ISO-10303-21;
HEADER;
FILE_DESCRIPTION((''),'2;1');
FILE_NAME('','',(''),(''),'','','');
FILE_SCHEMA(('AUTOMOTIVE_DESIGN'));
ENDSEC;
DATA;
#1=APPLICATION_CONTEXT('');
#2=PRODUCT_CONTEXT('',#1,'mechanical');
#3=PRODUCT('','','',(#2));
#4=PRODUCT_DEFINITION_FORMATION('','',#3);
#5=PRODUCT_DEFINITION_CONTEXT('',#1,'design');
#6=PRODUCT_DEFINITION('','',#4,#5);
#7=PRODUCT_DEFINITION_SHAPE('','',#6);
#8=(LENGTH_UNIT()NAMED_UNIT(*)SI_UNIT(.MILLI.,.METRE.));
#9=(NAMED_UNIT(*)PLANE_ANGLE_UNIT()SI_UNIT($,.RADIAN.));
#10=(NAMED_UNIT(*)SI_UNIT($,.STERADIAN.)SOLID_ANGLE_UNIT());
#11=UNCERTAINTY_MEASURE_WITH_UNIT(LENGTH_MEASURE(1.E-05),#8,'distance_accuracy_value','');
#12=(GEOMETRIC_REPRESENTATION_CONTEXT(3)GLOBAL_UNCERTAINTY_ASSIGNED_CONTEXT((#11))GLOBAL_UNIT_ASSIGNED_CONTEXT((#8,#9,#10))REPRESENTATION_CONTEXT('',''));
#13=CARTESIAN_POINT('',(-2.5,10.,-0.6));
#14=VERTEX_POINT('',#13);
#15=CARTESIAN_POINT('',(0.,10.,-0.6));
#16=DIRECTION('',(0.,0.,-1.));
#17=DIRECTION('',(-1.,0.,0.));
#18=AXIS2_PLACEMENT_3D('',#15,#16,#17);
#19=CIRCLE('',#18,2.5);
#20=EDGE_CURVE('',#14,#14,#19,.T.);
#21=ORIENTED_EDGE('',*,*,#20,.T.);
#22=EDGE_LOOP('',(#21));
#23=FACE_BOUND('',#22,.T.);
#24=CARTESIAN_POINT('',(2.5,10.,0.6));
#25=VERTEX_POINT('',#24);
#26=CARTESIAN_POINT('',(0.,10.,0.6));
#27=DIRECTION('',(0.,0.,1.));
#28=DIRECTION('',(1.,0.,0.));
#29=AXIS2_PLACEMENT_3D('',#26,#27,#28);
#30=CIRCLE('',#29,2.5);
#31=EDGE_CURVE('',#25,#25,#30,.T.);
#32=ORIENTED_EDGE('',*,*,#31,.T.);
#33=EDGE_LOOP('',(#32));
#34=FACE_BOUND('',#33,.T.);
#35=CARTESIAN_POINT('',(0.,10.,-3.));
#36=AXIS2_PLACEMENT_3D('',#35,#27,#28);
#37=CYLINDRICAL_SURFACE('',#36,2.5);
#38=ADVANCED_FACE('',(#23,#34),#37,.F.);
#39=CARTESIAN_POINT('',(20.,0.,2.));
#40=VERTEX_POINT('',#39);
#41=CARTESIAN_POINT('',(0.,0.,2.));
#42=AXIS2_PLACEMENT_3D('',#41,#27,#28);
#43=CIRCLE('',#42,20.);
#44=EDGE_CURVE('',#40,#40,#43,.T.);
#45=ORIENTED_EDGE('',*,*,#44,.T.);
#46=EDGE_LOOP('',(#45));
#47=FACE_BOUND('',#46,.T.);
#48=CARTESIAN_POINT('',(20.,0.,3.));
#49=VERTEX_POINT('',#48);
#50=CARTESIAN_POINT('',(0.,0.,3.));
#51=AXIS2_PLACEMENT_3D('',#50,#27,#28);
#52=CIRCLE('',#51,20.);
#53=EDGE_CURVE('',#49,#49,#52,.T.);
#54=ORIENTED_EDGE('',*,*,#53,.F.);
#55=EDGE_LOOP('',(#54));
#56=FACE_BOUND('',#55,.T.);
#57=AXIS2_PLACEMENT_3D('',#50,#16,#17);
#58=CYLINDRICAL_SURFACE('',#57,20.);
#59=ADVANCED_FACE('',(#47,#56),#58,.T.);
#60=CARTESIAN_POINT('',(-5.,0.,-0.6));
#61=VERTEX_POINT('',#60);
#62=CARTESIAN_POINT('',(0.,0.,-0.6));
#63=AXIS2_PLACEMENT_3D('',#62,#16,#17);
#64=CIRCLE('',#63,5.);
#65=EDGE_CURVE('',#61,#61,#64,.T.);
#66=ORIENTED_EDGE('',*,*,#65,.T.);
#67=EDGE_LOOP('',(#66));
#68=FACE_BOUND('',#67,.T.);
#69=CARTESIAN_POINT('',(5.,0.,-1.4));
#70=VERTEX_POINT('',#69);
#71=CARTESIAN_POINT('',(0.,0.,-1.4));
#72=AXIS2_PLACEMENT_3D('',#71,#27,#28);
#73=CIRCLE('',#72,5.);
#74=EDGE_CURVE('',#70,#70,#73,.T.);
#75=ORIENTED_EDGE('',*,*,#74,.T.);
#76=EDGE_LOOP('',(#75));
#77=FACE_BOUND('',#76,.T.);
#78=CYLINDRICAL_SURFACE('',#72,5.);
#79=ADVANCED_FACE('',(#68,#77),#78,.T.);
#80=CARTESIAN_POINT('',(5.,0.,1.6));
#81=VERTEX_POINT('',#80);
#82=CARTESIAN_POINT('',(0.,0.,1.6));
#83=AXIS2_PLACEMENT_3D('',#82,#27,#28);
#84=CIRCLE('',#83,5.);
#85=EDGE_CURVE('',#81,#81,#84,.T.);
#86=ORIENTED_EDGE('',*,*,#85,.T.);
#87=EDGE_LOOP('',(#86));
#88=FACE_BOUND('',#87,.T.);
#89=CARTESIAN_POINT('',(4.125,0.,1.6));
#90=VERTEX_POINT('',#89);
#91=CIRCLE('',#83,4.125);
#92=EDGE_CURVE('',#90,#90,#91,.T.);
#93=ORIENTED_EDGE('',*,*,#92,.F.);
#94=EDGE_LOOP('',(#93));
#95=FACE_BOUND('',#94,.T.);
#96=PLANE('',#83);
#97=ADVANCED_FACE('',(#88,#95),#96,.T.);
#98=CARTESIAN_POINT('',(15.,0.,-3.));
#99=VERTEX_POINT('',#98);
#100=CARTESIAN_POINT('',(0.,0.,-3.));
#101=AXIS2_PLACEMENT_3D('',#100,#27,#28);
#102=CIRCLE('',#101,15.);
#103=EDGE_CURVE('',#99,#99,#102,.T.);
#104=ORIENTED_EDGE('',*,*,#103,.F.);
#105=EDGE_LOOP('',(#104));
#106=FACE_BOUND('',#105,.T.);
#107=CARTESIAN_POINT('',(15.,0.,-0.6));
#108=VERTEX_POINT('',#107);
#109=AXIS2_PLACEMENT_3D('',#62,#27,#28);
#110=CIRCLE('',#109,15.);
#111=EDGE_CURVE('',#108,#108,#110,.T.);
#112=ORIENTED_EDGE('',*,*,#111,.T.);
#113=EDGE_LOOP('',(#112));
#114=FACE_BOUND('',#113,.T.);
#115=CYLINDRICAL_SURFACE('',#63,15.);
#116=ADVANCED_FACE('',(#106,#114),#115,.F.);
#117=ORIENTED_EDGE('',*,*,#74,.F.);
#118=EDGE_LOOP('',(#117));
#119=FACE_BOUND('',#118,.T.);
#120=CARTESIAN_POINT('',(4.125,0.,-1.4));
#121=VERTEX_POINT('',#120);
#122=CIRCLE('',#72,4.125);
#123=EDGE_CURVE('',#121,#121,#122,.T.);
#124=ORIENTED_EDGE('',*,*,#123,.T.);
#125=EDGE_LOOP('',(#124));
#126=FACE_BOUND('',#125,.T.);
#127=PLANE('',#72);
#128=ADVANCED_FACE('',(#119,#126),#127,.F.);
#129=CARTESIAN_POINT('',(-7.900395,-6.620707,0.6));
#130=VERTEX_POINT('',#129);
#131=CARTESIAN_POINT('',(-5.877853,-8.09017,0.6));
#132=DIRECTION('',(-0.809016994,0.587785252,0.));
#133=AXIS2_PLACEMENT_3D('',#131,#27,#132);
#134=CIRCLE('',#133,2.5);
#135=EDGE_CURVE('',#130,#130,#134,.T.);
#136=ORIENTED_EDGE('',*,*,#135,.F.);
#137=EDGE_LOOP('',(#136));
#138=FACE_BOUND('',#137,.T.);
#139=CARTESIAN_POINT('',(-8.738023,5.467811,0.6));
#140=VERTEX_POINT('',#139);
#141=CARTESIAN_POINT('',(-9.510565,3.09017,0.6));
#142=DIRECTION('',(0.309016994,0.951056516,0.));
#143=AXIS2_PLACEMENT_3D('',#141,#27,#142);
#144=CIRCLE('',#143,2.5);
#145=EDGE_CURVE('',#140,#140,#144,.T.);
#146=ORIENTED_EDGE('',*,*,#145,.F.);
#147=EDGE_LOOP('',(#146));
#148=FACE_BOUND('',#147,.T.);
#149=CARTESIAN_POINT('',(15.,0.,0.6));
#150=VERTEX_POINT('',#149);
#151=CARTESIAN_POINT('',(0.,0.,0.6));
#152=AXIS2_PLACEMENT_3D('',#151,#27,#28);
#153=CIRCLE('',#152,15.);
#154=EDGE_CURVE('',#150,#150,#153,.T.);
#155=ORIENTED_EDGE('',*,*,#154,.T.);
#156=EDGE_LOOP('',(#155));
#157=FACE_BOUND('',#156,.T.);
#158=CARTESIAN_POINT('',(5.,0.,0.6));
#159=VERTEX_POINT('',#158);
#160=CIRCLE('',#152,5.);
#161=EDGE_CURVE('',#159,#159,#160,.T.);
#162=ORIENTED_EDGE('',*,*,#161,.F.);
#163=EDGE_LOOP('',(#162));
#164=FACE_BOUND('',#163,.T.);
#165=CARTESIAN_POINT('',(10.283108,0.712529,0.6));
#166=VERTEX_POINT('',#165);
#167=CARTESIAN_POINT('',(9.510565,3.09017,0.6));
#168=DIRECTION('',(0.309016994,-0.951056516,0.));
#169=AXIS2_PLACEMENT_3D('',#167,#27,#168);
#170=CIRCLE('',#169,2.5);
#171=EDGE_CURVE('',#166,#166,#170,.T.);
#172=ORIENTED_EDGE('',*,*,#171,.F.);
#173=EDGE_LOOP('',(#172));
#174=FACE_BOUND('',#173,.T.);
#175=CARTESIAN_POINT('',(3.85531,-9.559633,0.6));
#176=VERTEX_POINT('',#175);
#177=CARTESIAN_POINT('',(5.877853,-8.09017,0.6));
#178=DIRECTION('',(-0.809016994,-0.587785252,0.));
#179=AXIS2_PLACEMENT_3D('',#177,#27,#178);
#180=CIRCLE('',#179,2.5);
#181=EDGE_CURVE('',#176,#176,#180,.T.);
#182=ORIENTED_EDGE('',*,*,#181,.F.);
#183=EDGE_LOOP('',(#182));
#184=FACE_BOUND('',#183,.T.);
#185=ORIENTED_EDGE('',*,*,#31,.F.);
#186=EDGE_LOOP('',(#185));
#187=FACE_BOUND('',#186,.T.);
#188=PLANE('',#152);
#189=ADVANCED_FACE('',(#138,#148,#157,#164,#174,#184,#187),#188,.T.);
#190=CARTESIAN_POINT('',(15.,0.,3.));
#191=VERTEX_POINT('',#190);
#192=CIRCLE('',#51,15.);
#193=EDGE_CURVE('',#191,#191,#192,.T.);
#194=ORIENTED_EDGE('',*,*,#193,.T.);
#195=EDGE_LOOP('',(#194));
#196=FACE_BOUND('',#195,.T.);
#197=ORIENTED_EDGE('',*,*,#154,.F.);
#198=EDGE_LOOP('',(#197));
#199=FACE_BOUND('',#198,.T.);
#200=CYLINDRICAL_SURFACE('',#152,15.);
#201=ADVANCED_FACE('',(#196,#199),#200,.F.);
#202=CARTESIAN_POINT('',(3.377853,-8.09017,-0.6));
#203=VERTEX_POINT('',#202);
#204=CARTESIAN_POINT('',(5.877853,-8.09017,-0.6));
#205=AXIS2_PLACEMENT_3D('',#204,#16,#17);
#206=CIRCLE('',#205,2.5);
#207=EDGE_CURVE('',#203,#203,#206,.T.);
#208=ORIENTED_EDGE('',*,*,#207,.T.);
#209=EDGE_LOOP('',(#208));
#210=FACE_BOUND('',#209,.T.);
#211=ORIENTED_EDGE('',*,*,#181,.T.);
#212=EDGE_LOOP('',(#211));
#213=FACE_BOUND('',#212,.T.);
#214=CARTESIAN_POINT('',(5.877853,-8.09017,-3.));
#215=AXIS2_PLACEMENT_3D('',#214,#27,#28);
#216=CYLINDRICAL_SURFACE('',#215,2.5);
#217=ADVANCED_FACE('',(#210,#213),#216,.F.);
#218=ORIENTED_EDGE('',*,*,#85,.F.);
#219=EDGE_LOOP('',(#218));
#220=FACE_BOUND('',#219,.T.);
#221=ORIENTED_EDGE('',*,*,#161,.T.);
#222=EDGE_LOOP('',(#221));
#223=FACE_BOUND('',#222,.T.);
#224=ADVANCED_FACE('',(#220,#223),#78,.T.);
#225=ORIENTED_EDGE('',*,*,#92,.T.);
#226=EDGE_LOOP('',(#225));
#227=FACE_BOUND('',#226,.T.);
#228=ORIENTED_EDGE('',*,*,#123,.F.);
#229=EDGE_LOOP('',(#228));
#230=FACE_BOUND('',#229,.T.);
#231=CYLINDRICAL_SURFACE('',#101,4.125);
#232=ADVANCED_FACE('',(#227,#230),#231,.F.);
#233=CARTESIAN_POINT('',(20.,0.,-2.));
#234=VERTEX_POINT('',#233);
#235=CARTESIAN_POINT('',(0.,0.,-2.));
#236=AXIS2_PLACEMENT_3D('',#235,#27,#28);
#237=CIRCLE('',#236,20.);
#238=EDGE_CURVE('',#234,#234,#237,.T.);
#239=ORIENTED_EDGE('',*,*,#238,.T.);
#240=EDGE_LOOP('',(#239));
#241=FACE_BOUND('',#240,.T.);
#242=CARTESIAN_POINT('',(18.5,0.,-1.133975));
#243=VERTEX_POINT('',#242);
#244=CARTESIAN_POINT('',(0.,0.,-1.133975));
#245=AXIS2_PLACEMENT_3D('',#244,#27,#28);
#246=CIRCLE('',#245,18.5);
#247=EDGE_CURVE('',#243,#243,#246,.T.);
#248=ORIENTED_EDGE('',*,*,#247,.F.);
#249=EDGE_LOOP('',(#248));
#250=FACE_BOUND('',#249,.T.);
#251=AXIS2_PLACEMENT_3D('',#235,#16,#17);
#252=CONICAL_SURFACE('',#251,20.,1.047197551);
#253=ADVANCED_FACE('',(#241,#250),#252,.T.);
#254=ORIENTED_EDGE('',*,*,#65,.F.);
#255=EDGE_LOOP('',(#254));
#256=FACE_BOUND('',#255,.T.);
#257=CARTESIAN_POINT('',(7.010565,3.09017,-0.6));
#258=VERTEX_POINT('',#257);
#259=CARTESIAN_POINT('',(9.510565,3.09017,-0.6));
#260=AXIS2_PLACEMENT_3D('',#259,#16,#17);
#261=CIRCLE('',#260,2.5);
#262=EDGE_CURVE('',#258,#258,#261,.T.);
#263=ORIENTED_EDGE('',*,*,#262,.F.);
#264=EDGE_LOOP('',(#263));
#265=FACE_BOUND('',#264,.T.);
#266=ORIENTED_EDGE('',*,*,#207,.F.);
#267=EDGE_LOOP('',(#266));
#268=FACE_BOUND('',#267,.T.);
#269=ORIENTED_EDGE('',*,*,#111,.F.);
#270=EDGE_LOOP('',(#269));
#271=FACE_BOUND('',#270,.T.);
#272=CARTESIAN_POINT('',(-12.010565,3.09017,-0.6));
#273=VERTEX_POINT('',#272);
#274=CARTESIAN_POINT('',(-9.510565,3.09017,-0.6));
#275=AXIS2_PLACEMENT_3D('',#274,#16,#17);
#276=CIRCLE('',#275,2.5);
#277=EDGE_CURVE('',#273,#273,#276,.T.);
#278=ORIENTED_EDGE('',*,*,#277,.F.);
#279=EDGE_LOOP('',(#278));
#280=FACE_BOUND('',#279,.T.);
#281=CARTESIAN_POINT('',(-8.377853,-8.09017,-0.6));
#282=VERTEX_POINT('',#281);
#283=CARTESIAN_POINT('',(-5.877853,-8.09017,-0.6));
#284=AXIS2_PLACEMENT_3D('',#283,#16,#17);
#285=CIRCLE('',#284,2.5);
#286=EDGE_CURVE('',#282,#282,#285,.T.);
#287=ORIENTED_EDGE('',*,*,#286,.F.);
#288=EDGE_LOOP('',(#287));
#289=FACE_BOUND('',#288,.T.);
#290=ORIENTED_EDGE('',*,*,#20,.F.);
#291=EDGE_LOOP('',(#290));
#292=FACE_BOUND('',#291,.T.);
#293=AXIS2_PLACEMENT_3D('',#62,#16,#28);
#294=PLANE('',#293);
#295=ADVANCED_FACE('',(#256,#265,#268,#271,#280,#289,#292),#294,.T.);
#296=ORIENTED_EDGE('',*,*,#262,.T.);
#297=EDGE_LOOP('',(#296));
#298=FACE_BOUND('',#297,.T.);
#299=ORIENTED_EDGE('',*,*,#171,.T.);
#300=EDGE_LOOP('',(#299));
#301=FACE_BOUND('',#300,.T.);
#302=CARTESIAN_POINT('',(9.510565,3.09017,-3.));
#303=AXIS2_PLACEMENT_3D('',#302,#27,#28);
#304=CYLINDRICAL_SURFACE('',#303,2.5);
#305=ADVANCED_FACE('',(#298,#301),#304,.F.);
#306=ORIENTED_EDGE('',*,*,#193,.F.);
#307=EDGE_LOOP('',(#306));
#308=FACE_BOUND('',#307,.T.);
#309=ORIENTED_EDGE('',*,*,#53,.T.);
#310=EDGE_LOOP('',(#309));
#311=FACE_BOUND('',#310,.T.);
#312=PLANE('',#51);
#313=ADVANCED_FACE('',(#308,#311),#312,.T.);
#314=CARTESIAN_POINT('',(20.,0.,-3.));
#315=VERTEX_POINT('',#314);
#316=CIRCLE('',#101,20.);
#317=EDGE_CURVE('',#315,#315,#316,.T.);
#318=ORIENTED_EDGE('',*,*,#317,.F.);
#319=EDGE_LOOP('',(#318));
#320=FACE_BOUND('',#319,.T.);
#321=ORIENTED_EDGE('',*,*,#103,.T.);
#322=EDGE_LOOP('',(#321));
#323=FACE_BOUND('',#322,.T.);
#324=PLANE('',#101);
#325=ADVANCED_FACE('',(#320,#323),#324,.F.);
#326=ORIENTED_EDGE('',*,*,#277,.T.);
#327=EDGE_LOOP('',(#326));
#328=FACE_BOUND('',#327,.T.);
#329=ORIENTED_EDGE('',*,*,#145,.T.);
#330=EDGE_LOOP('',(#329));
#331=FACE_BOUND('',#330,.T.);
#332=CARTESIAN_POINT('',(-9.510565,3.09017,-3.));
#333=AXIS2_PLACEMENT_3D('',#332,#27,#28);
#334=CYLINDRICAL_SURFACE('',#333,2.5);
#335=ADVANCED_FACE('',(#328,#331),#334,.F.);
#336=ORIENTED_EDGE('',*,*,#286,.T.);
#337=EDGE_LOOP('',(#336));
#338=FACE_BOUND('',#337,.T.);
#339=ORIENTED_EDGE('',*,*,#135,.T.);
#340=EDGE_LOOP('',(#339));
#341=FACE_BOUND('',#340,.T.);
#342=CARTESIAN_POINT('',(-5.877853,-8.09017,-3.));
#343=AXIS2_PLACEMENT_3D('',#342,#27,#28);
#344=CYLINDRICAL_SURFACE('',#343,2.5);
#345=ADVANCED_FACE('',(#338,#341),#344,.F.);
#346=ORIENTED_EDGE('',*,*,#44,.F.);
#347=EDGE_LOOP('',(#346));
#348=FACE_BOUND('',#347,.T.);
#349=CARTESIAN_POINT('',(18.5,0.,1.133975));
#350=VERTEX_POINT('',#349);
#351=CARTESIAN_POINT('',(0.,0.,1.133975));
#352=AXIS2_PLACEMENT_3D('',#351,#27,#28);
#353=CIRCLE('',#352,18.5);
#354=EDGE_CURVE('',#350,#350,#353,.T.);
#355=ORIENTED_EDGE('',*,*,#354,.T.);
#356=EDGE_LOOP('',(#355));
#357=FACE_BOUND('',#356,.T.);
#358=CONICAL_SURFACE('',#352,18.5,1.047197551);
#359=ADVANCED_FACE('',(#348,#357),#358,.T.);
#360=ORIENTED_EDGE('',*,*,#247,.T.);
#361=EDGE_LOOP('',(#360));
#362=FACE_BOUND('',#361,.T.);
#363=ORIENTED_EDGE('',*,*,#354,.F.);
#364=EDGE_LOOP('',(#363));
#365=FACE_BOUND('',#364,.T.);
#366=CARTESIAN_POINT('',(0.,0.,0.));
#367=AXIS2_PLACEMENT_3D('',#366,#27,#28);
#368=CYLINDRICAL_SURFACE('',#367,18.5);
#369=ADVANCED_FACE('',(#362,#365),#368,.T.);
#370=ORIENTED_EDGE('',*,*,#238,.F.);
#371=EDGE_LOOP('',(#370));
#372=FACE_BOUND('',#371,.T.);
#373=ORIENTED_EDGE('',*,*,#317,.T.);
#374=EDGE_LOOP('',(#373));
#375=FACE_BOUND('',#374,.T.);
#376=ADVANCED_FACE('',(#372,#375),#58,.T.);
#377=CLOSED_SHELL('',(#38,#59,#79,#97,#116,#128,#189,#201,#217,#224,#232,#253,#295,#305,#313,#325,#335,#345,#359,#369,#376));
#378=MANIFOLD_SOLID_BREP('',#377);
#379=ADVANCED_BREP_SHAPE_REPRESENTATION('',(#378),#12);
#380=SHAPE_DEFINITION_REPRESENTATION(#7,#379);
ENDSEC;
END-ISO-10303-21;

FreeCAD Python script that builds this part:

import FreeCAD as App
import Part
import Sketcher

V = App.Vector
Q = App.Units.Quantity


def add_polygon(sketch, points):
    """Adds a closed chain of lines whose ends are joined by coincident constraints."""
    first, n = sketch.GeometryCount, len(points)
    for a, b in zip(points, points[1:] + points[:1]):
        sketch.addGeometry(Part.LineSegment(App.Vector(*a, 0), App.Vector(*b, 0)), False)
    for i in range(n):
        sketch.addConstraint(Sketcher.Constraint("Coincident", first + i, 2, first + (i + 1) % n, 1))

doc = App.newDocument("Part")
body = doc.addObject("PartDesign::Body", "Body")

# Sketch on XY plane
sketch1 = body.newObject("Sketcher::SketchObject", "Sketch")
sketch1.AttachmentSupport = (doc.getObject("XY_Plane"), [""])
sketch1.MapMode = "FlatFace"
sketch1.addGeometry([
    Part.Circle(V(0, 0, 0), V(0, 0, 1), 20),
    Part.Circle(V(0, 0, 0), V(0, 0, 1), 4),
], False)
sketch1.addConstraint([
    Sketcher.Constraint("Coincident", 0, 3, -1, 1),
    Sketcher.Constraint("Coincident", 1, 3, -1, 1),
    Sketcher.Constraint("Diameter", 0, Q("40 mm")),
    Sketcher.Constraint("Diameter", 1, Q("8 mm")),
])
pad1 = body.newObject("PartDesign::Pad", "Pad")
pad1.Profile = sketch1
pad1.Length = 6
pad1.Midplane = True

# Sketch on XY plane
sketch2 = body.newObject("Sketcher::SketchObject", "Sketch001")
sketch2.AttachmentSupport = (doc.getObject("XY_Plane"), [""])
sketch2.MapMode = "FlatFace"
sketch2.AttachmentOffset = App.Placement(V(0, 0, 3), App.Rotation())
sketch2.addGeometry(Part.Circle(V(0, 0, 0), V(0, 0, 1), 15), False)
sketch2.addConstraint([
    Sketcher.Constraint("Coincident", 0, 3, -1, 1),
    Sketcher.Constraint("Diameter", 0, Q("30 mm")),
])
pocket1 = body.newObject("PartDesign::Pocket", "Pocket")
pocket1.Profile = sketch2
pocket1.Length = 2.4
doc.recompute()

mirrored = body.newObject("PartDesign::Mirrored", "Mirrored")
mirrored.Originals = [pocket1]
mirrored.MirrorPlane = (doc.getObject("XY_Plane"), [""])
body.Tip = mirrored

# Sketch on XY plane
sketch3 = body.newObject("Sketcher::SketchObject", "Sketch002")
sketch3.AttachmentSupport = (doc.getObject("XY_Plane"), [""])
sketch3.MapMode = "FlatFace"
sketch3.AttachmentOffset = App.Placement(V(0, 0, 0.6), App.Rotation())
sketch3.addGeometry(Part.Circle(V(0, 10, 0), V(0, 0, 1), 2.5), False)
sketch3.addConstraint([
    Sketcher.Constraint("PointOnObject", 0, 3, -2),
    Sketcher.Constraint("Diameter", 0, Q("5 mm")),
    Sketcher.Constraint("DistanceY", -1, 1, 0, 3, Q("10 mm")),
])
pocket2 = body.newObject("PartDesign::Pocket", "Pocket001")
pocket2.Profile = sketch3
pocket2.Type = "ThroughAll"
doc.recompute()

polarpattern = body.newObject("PartDesign::PolarPattern", "PolarPattern")
polarpattern.Originals = [pocket2]
polarpattern.Axis = (doc.getObject("Z_Axis"), [""])
polarpattern.Angle = 360
polarpattern.Occurrences = 5
body.Tip = polarpattern

# Sketch on XZ plane
sketch4 = body.newObject("Sketcher::SketchObject", "Sketch003")
sketch4.AttachmentSupport = (doc.getObject("XZ_Plane"), [""])
sketch4.MapMode = "FlatFace"
add_polygon(sketch4, [(20, -2), (18.5, -1.1), (18.5, 1.1), (20, 2)])  # lines 0-3
sketch4.addConstraint([
    Sketcher.Constraint("Vertical", 1),
    Sketcher.Constraint("Vertical", 3),
    Sketcher.Constraint("Equal", 0, 2),
    Sketcher.Constraint("DistanceY", 3, 2, 3, 1, Q("4 mm")),
    Sketcher.Constraint("Angle", 0, Q("150 deg")),
    Sketcher.Constraint("DistanceX", -1, 1, 2, 2, Q("20 mm")),
    Sketcher.Constraint("DistanceY", -1, 1, 2, 2, Q("2 mm")),
    Sketcher.Constraint("DistanceX", -1, 1, 0, 2, Q("18.5 mm")),
])
groove = body.newObject("PartDesign::Groove", "Groove")
groove.Profile = sketch4
groove.ReferenceAxis = (sketch4, ["V_Axis"])
groove.Angle = 360

# Sketch on XY plane
sketch5 = body.newObject("Sketcher::SketchObject", "Sketch004")
sketch5.AttachmentSupport = (doc.getObject("XY_Plane"), [""])
sketch5.MapMode = "FlatFace"
sketch5.AttachmentOffset = App.Placement(V(0, 0, 0.6), App.Rotation())
sketch5.addGeometry(Part.Circle(V(0, 0, 0), V(0, 0, 1), 5), False)
sketch5.addConstraint([
    Sketcher.Constraint("Coincident", 0, 3, -1, 1),
    Sketcher.Constraint("Diameter", 0, Q("10 mm")),
])
pad2 = body.newObject("PartDesign::Pad", "Pad001")
pad2.Profile = sketch5
pad2.Type = "TwoLengths"
pad2.Length = 1
pad2.Length2 = 2

# Sketch on XY plane
sketch6 = body.newObject("Sketcher::SketchObject", "Sketch005")
sketch6.AttachmentSupport = (doc.getObject("XY_Plane"), [""])
sketch6.MapMode = "FlatFace"
sketch6.AttachmentOffset = App.Placement(V(0, 0, 1.6), App.Rotation())
sketch6.addGeometry(Part.Circle(V(0, 0, 0), V(0, 0, 1), 4.1), False)
sketch6.addConstraint([
    Sketcher.Constraint("Coincident", 0, 3, -1, 1),
    Sketcher.Constraint("Diameter", 0, Q("8.25 mm")),
])
pocket3 = body.newObject("PartDesign::Pocket", "Pocket002")
pocket3.Profile = sketch6
pocket3.Type = "ThroughAll"

doc.recompute()
